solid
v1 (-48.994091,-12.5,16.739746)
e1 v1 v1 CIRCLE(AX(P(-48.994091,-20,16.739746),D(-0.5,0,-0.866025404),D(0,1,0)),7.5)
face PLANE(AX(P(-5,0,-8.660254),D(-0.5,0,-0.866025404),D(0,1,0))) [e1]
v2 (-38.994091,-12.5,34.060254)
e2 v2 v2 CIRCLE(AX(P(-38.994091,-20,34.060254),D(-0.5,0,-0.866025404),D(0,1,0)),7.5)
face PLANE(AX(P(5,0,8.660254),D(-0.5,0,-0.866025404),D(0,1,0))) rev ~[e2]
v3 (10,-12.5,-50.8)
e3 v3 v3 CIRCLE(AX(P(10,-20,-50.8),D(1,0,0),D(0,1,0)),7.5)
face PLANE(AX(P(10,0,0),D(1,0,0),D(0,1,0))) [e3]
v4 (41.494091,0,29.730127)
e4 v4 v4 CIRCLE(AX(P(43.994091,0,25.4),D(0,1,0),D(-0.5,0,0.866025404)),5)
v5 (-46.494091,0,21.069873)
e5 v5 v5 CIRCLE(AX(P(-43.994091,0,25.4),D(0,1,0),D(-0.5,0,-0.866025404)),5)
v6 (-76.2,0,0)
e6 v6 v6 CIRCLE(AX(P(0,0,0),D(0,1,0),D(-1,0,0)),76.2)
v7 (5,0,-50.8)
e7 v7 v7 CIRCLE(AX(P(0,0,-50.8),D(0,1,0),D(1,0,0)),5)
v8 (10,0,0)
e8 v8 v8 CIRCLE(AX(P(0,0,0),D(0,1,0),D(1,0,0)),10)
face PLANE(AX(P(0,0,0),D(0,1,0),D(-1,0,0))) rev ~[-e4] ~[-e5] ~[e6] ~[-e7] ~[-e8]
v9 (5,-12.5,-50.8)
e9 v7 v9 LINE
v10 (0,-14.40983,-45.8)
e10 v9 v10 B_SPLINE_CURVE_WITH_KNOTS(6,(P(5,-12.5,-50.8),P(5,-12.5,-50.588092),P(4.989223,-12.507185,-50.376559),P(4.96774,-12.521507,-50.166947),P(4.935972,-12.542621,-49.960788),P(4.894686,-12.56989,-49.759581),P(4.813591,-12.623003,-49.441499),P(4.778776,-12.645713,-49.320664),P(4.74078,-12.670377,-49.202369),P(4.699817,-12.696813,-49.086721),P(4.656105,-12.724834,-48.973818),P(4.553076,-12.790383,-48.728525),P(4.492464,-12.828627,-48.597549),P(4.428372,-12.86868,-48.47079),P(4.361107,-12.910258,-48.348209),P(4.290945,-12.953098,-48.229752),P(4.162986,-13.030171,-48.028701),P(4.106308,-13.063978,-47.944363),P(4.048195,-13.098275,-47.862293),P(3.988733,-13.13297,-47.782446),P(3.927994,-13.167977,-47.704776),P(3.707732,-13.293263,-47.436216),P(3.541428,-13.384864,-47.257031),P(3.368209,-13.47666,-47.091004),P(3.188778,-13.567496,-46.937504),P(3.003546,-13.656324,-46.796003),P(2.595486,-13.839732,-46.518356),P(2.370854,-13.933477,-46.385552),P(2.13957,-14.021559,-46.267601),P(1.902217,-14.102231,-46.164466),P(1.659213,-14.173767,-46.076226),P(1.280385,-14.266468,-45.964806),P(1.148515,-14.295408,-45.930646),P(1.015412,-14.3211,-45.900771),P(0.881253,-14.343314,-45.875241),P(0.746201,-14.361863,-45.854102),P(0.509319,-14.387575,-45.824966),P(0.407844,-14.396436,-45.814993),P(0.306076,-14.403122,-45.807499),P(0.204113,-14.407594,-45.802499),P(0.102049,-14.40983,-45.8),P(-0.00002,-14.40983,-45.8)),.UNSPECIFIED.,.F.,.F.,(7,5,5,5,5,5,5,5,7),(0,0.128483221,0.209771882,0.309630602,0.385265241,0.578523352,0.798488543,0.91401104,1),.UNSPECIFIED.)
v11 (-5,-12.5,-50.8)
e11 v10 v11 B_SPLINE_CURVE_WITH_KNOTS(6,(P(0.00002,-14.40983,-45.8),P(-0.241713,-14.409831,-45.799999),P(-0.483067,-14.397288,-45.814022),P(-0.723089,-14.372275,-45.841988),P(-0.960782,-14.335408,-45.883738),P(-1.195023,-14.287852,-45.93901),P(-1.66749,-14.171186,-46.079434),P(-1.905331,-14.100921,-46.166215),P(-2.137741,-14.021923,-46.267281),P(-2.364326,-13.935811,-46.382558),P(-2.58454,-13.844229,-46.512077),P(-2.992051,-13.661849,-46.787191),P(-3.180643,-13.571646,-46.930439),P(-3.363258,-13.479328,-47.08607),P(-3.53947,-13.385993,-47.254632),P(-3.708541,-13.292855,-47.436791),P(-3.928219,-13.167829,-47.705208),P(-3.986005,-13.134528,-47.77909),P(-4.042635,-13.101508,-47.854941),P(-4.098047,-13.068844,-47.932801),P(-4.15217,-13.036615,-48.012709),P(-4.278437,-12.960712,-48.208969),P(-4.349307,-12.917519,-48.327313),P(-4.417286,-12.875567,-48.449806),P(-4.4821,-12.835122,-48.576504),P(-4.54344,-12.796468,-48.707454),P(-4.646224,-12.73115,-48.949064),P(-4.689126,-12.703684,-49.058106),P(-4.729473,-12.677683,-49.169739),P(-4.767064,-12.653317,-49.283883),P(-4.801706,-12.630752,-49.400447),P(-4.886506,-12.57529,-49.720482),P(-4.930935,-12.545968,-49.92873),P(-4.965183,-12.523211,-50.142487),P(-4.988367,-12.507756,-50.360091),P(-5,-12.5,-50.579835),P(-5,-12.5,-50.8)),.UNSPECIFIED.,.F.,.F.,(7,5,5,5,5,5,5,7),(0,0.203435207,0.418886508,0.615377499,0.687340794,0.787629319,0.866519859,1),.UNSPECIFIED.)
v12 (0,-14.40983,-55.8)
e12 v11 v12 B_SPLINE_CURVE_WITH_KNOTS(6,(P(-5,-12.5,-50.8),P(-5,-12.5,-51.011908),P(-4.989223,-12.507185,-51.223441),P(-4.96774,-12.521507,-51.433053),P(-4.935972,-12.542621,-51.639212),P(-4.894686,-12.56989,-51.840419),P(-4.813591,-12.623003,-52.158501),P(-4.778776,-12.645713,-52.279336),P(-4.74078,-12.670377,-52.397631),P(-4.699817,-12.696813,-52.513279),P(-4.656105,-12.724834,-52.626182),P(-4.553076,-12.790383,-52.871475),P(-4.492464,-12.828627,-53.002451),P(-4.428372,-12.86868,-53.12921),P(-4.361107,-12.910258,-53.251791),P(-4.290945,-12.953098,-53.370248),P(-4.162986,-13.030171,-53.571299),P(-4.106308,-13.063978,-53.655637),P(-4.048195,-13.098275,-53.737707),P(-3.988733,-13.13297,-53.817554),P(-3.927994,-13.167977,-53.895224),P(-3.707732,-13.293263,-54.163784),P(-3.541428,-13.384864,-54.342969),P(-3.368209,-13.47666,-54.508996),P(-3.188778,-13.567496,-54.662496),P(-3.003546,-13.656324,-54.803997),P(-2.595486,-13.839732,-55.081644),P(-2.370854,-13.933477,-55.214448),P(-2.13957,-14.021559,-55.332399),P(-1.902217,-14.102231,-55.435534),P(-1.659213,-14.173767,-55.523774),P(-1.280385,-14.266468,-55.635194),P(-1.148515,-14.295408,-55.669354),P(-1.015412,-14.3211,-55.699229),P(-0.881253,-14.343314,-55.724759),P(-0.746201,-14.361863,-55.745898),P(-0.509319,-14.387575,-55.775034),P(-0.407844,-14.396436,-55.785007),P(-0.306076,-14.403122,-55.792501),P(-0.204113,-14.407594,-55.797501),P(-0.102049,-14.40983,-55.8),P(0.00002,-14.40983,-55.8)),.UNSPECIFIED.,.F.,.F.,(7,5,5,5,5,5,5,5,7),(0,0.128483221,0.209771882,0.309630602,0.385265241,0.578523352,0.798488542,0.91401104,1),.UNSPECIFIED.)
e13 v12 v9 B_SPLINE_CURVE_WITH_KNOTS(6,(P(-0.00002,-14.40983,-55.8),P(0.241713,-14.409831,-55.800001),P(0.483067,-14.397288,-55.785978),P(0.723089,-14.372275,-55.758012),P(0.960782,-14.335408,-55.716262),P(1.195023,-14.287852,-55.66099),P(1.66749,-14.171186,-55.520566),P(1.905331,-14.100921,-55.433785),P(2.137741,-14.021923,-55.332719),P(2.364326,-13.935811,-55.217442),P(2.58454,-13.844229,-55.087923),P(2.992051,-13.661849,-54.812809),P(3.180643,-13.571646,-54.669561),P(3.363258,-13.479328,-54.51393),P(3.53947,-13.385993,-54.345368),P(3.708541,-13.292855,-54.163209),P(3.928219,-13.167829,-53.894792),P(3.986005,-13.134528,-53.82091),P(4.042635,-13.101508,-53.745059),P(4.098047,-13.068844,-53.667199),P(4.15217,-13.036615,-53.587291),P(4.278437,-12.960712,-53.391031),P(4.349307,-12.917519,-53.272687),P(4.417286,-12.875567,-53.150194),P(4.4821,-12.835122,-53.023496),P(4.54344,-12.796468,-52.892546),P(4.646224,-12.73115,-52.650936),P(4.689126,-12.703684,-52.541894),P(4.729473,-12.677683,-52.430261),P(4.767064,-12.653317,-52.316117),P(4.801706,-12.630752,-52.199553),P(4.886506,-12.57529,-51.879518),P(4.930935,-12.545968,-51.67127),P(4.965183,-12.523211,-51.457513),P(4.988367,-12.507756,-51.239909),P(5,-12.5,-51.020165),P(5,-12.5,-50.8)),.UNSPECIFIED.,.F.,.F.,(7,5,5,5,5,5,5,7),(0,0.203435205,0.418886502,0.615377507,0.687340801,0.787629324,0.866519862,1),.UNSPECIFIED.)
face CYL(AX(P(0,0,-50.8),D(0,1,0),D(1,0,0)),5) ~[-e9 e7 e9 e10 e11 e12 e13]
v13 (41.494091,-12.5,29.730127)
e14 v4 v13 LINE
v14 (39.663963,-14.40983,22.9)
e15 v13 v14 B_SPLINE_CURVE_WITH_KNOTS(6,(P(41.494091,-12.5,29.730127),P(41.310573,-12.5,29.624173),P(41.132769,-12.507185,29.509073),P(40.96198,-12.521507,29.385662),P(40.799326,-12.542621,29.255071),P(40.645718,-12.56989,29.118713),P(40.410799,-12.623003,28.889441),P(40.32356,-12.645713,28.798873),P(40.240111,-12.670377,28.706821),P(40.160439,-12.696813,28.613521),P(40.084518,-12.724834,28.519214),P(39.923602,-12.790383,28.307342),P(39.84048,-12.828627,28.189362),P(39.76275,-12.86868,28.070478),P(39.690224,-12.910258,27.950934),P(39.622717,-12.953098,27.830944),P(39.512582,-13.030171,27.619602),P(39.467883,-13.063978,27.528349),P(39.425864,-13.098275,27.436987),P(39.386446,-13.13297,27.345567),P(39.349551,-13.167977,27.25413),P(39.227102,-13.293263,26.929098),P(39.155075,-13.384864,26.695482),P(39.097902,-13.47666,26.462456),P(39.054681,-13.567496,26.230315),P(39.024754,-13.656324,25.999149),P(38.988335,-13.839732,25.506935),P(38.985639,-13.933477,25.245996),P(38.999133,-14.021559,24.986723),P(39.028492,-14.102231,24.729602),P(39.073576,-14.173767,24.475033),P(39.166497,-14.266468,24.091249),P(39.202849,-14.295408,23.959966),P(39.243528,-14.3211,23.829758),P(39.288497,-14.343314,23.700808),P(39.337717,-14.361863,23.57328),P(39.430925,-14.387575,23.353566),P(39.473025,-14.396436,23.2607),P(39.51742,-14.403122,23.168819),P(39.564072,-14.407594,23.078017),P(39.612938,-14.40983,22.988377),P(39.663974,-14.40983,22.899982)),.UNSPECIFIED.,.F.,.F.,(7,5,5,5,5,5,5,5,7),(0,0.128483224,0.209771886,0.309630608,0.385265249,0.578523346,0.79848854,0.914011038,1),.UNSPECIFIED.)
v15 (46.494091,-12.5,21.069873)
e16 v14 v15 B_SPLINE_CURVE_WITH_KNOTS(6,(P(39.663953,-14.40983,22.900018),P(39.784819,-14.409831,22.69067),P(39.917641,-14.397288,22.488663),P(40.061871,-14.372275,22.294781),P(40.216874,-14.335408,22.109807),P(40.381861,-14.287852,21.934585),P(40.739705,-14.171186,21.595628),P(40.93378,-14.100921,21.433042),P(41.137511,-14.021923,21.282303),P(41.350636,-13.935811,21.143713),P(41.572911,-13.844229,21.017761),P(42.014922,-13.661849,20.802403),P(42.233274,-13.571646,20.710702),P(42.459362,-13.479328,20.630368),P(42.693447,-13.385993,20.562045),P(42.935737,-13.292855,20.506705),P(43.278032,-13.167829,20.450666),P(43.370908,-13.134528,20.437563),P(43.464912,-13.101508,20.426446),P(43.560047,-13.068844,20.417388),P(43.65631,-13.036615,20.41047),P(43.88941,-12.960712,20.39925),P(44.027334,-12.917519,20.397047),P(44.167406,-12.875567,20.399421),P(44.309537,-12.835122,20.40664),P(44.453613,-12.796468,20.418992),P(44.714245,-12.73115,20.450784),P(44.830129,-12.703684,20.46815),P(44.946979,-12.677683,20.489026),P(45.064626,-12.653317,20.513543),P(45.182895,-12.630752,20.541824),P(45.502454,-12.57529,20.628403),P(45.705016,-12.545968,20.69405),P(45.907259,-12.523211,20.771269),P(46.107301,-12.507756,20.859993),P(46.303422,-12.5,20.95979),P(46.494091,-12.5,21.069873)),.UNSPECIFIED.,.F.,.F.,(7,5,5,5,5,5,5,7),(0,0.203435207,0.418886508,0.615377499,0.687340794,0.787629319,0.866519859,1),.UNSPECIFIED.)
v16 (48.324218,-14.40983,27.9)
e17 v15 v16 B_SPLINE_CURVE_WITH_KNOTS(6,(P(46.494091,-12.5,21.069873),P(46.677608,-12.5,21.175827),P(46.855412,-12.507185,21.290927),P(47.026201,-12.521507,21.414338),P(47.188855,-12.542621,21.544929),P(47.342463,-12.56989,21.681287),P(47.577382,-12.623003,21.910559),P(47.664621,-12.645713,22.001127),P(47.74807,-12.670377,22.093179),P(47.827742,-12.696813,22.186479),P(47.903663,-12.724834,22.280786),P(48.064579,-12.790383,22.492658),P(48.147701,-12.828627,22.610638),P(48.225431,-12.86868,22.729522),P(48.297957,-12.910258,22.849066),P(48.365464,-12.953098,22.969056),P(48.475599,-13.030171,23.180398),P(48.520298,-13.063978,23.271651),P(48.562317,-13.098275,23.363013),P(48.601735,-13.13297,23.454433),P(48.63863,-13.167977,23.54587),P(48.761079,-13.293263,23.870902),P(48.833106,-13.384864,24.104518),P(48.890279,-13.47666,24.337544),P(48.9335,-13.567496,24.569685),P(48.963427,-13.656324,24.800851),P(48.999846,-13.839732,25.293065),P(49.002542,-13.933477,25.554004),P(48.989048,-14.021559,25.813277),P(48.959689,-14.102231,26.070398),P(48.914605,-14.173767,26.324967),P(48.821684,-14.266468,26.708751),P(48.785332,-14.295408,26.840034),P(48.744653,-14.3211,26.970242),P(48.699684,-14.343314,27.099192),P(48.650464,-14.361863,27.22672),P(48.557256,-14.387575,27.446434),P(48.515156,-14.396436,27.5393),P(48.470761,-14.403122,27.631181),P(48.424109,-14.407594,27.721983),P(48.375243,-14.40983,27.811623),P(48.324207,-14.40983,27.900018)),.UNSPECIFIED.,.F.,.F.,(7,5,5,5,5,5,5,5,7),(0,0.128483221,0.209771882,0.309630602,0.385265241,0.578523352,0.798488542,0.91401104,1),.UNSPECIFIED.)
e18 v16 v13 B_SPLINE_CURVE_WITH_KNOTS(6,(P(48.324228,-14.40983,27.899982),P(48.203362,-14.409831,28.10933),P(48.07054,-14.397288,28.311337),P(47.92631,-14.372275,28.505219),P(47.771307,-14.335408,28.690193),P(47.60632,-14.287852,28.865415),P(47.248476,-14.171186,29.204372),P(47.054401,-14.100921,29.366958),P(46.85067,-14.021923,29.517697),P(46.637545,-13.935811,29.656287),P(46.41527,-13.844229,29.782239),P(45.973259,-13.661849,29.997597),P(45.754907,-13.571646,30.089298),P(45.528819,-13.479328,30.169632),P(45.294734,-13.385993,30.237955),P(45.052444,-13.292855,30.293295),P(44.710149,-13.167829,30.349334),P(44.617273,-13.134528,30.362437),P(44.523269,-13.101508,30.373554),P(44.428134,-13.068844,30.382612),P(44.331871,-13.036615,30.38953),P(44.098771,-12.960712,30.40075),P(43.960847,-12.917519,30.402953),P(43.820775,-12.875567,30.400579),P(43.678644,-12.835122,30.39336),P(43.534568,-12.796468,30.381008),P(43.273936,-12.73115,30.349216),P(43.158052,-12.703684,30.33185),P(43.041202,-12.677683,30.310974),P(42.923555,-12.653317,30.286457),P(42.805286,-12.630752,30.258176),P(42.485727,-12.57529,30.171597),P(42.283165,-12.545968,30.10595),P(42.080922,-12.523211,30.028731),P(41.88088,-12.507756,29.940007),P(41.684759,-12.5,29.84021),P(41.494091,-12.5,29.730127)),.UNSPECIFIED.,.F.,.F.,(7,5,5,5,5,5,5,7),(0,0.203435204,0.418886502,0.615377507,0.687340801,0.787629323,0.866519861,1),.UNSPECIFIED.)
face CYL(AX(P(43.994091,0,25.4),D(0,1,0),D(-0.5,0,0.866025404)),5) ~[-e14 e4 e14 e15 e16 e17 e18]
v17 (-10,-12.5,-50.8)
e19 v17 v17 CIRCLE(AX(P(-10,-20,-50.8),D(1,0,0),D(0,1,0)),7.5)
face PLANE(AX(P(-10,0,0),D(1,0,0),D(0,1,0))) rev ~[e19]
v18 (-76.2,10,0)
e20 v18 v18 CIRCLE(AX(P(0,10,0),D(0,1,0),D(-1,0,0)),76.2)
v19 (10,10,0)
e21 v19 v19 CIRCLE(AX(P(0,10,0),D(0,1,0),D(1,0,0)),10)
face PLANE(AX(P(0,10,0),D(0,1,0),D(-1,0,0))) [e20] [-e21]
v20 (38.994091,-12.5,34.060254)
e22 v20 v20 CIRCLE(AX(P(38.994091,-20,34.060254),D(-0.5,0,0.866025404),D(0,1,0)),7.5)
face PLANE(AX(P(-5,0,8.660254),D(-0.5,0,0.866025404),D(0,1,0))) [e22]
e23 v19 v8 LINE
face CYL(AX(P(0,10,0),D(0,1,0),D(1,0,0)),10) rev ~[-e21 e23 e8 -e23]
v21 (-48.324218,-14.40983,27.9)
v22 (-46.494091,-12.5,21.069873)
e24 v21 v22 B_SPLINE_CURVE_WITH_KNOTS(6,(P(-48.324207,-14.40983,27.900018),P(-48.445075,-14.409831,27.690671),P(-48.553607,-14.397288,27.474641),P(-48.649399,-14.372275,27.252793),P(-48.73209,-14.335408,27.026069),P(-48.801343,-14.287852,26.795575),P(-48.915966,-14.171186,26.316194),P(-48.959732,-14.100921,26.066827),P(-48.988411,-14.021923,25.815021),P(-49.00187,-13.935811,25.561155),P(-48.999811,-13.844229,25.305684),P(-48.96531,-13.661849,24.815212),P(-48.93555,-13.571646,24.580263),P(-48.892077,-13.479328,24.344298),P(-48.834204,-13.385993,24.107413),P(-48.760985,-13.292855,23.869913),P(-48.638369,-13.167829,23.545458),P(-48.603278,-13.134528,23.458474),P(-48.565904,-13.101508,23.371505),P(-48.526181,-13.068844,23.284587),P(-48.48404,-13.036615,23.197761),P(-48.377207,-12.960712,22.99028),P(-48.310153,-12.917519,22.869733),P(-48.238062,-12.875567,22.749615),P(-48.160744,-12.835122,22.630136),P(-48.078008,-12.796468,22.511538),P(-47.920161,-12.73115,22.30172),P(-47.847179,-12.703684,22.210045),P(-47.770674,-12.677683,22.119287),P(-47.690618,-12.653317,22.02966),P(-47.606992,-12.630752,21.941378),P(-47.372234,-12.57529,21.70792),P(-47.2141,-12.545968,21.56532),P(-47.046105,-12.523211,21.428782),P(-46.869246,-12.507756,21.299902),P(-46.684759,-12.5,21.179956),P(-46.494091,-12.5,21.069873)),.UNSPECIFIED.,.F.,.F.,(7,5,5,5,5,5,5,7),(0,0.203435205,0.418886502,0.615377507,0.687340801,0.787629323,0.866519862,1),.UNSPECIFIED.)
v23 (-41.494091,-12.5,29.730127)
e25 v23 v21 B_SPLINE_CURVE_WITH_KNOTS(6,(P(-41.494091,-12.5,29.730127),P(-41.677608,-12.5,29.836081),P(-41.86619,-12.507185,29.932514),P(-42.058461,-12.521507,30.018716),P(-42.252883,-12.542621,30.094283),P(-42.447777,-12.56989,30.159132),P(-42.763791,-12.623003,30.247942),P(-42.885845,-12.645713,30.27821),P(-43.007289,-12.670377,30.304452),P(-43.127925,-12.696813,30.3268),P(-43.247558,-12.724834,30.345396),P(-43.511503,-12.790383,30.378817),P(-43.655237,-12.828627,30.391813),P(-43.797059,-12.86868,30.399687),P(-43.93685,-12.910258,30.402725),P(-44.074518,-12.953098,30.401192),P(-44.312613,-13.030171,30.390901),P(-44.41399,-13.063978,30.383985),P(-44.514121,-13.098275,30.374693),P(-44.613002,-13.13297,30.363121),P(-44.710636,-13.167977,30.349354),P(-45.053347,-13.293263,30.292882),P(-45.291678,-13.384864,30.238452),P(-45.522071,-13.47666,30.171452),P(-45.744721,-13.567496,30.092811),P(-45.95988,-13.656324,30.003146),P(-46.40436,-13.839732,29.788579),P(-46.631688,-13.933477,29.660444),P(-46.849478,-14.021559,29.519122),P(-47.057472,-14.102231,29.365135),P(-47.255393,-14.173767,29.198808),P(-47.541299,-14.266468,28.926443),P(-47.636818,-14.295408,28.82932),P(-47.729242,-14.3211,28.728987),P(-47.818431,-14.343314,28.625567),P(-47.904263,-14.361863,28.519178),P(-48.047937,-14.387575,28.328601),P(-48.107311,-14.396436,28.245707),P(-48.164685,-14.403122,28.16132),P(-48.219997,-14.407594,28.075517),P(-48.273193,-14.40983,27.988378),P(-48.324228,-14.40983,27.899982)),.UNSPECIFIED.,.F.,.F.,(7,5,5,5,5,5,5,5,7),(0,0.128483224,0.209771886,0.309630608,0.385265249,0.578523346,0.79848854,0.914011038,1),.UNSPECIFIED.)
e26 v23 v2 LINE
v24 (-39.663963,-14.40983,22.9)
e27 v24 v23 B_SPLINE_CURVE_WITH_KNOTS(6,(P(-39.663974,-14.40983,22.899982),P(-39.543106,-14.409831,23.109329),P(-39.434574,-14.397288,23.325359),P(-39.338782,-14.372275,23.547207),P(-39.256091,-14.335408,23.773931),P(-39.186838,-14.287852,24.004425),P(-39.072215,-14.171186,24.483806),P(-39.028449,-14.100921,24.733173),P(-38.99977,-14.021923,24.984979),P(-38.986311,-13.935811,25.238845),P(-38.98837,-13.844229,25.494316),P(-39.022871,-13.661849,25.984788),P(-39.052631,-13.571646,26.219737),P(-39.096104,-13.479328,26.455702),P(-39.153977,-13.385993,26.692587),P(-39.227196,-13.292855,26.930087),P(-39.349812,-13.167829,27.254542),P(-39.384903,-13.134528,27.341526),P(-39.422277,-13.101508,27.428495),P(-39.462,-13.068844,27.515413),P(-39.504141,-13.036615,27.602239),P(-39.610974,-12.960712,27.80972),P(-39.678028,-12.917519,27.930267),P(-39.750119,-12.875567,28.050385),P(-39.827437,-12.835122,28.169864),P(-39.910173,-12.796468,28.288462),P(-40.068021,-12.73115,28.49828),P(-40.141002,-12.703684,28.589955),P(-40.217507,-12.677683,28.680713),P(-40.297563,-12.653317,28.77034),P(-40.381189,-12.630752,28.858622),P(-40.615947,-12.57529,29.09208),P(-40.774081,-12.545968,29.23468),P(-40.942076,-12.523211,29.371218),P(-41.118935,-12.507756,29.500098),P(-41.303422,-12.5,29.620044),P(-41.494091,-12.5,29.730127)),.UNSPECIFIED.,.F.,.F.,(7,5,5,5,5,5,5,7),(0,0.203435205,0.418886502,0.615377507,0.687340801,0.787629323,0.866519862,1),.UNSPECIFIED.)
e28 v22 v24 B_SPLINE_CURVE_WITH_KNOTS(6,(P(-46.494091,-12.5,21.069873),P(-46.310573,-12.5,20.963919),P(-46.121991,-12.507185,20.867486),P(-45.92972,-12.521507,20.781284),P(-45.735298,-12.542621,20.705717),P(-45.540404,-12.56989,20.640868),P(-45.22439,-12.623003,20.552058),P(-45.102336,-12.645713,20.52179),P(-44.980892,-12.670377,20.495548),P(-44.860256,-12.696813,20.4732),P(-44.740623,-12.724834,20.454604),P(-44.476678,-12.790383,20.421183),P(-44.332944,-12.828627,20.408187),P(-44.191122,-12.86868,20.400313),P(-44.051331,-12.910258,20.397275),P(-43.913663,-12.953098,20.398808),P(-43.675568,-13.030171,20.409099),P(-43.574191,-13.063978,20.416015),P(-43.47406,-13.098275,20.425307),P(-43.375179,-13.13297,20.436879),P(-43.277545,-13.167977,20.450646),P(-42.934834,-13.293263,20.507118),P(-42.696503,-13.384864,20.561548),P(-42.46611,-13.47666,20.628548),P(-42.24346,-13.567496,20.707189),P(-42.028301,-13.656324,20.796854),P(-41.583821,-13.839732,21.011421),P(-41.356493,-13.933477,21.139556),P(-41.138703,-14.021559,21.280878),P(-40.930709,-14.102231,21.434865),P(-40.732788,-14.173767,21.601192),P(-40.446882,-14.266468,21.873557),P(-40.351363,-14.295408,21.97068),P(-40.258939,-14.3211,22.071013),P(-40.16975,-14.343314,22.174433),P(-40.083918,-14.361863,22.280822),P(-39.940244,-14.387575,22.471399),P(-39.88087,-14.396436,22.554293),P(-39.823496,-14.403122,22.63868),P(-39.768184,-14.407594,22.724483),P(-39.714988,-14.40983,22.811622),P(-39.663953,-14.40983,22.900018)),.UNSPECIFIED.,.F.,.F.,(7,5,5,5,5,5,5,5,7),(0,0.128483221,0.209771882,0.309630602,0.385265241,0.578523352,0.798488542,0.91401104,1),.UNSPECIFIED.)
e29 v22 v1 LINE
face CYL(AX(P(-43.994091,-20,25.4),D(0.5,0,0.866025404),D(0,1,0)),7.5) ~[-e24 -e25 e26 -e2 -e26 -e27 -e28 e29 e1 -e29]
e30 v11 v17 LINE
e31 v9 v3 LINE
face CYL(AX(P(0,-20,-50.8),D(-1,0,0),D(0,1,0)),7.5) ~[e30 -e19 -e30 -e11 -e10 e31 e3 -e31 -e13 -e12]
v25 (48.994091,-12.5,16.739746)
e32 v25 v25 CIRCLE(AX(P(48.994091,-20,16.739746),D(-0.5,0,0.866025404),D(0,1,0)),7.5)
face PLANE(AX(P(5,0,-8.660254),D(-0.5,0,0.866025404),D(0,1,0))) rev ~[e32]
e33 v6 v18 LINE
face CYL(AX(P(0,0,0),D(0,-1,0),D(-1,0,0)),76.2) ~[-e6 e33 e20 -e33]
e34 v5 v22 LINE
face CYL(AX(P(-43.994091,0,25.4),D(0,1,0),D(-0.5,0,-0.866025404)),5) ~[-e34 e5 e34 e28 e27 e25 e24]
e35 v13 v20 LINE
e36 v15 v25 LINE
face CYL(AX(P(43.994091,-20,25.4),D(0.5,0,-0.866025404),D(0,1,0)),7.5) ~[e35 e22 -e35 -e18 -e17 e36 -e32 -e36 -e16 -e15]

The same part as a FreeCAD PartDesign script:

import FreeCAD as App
import Part
import Sketcher
Q = App.Units.Quantity

doc = App.newDocument("Part")
body = doc.addObject("PartDesign::Body", "Body")

# Sketch on XZ plane
sketch1 = doc.addObject("Sketcher::SketchObject", "Sketch")
body.addObject(sketch1)
sketch1.AttachmentSupport = (doc.XZ_Plane, [""])
sketch1.MapMode = "FlatFace"
sketch1.addGeometry(Part.Circle(App.Vector(0, 0, 0), App.Vector(0, 0, 1), 76.2), False)
sketch1.addConstraint(Sketcher.Constraint("Coincident", 0, 3, -1, 1))
sketch1.addConstraint(Sketcher.Constraint("Diameter", 0, Q("152.4 mm")))
pad1 = doc.addObject("PartDesign::Pad", "Pad")
body.addObject(pad1)
pad1.Profile = sketch1
pad1.Length = 10
pad1.Reversed = True

# Sketch on XZ plane
sketch2 = doc.addObject("Sketcher::SketchObject", "Sketch001")
body.addObject(sketch2)
sketch2.AttachmentSupport = (doc.XZ_Plane, [""])
sketch2.MapMode = "FlatFace"
sketch2.addGeometry(Part.Circle(App.Vector(0, -50.8, 0), App.Vector(0, 0, 1), 5), False)
sketch2.addConstraint(Sketcher.Constraint("PointOnObject", 0, 3, -2))
sketch2.addConstraint(Sketcher.Constraint("Diameter", 0, Q("10 mm")))
sketch2.addConstraint(Sketcher.Constraint("DistanceY", 0, 3, -1, 1, Q("50.8 mm")))
pad2 = doc.addObject("PartDesign::Pad", "Pad001")
body.addObject(pad2)
pad2.Profile = sketch2
pad2.Length = 20
doc.recompute()

polarpattern = doc.addObject("PartDesign::PolarPattern", "PolarPattern")
body.addObject(polarpattern)
polarpattern.Originals = [pad2]
polarpattern.Axis = (doc.Y_Axis, [""])
polarpattern.Angle = 360
polarpattern.Occurrences = 3
body.Tip = polarpattern

# Sketch on XZ plane
sketch3 = doc.addObject("Sketcher::SketchObject", "Sketch002")
body.addObject(sketch3)
sketch3.AttachmentSupport = (doc.XZ_Plane, [""])
sketch3.MapMode = "FlatFace"
sketch3.AttachmentOffset = App.Placement(App.Vector(0, 0, -10), App.Rotation())
sketch3.addGeometry(Part.Circle(App.Vector(0, 0, 0), App.Vector(0, 0, 1), 10), False)
sketch3.addConstraint(Sketcher.Constraint("Coincident", 0, 3, -1, 1))
sketch3.addConstraint(Sketcher.Constraint("Diameter", 0, Q("20 mm")))
pocket1 = doc.addObject("PartDesign::Pocket", "Pocket")
body.addObject(pocket1)
pocket1.Profile = sketch3
pocket1.Length = 10
pocket1.Reversed = True

# Sketch on YZ plane
sketch4 = doc.addObject("Sketcher::SketchObject", "Sketch003")
body.addObject(sketch4)
sketch4.AttachmentSupport = (doc.YZ_Plane, [""])
sketch4.MapMode = "FlatFace"
sketch4.addGeometry(Part.Circle(App.Vector(-20, -50.8, 0), App.Vector(0, 0, 1), 7.5), False)
sketch4.addConstraint(Sketcher.Constraint("Diameter", 0, Q("15 mm")))
sketch4.addConstraint(Sketcher.Constraint("DistanceX", 0, 3, -1, 1, Q("20 mm")))
sketch4.addConstraint(Sketcher.Constraint("DistanceY", 0, 3, -1, 1, Q("50.8 mm")))
pad3 = doc.addObject("PartDesign::Pad", "Pad002")
body.addObject(pad3)
pad3.Profile = sketch4
pad3.Length = 20
pad3.Midplane = True
doc.recompute()

polarpattern2 = doc.addObject("PartDesign::PolarPattern", "PolarPattern001")
body.addObject(polarpattern2)
polarpattern2.Originals = [pad3]
polarpattern2.Axis = (doc.Y_Axis, [""])
polarpattern2.Angle = 360
polarpattern2.Occurrences = 3
body.Tip = polarpattern2

doc.recompute()
